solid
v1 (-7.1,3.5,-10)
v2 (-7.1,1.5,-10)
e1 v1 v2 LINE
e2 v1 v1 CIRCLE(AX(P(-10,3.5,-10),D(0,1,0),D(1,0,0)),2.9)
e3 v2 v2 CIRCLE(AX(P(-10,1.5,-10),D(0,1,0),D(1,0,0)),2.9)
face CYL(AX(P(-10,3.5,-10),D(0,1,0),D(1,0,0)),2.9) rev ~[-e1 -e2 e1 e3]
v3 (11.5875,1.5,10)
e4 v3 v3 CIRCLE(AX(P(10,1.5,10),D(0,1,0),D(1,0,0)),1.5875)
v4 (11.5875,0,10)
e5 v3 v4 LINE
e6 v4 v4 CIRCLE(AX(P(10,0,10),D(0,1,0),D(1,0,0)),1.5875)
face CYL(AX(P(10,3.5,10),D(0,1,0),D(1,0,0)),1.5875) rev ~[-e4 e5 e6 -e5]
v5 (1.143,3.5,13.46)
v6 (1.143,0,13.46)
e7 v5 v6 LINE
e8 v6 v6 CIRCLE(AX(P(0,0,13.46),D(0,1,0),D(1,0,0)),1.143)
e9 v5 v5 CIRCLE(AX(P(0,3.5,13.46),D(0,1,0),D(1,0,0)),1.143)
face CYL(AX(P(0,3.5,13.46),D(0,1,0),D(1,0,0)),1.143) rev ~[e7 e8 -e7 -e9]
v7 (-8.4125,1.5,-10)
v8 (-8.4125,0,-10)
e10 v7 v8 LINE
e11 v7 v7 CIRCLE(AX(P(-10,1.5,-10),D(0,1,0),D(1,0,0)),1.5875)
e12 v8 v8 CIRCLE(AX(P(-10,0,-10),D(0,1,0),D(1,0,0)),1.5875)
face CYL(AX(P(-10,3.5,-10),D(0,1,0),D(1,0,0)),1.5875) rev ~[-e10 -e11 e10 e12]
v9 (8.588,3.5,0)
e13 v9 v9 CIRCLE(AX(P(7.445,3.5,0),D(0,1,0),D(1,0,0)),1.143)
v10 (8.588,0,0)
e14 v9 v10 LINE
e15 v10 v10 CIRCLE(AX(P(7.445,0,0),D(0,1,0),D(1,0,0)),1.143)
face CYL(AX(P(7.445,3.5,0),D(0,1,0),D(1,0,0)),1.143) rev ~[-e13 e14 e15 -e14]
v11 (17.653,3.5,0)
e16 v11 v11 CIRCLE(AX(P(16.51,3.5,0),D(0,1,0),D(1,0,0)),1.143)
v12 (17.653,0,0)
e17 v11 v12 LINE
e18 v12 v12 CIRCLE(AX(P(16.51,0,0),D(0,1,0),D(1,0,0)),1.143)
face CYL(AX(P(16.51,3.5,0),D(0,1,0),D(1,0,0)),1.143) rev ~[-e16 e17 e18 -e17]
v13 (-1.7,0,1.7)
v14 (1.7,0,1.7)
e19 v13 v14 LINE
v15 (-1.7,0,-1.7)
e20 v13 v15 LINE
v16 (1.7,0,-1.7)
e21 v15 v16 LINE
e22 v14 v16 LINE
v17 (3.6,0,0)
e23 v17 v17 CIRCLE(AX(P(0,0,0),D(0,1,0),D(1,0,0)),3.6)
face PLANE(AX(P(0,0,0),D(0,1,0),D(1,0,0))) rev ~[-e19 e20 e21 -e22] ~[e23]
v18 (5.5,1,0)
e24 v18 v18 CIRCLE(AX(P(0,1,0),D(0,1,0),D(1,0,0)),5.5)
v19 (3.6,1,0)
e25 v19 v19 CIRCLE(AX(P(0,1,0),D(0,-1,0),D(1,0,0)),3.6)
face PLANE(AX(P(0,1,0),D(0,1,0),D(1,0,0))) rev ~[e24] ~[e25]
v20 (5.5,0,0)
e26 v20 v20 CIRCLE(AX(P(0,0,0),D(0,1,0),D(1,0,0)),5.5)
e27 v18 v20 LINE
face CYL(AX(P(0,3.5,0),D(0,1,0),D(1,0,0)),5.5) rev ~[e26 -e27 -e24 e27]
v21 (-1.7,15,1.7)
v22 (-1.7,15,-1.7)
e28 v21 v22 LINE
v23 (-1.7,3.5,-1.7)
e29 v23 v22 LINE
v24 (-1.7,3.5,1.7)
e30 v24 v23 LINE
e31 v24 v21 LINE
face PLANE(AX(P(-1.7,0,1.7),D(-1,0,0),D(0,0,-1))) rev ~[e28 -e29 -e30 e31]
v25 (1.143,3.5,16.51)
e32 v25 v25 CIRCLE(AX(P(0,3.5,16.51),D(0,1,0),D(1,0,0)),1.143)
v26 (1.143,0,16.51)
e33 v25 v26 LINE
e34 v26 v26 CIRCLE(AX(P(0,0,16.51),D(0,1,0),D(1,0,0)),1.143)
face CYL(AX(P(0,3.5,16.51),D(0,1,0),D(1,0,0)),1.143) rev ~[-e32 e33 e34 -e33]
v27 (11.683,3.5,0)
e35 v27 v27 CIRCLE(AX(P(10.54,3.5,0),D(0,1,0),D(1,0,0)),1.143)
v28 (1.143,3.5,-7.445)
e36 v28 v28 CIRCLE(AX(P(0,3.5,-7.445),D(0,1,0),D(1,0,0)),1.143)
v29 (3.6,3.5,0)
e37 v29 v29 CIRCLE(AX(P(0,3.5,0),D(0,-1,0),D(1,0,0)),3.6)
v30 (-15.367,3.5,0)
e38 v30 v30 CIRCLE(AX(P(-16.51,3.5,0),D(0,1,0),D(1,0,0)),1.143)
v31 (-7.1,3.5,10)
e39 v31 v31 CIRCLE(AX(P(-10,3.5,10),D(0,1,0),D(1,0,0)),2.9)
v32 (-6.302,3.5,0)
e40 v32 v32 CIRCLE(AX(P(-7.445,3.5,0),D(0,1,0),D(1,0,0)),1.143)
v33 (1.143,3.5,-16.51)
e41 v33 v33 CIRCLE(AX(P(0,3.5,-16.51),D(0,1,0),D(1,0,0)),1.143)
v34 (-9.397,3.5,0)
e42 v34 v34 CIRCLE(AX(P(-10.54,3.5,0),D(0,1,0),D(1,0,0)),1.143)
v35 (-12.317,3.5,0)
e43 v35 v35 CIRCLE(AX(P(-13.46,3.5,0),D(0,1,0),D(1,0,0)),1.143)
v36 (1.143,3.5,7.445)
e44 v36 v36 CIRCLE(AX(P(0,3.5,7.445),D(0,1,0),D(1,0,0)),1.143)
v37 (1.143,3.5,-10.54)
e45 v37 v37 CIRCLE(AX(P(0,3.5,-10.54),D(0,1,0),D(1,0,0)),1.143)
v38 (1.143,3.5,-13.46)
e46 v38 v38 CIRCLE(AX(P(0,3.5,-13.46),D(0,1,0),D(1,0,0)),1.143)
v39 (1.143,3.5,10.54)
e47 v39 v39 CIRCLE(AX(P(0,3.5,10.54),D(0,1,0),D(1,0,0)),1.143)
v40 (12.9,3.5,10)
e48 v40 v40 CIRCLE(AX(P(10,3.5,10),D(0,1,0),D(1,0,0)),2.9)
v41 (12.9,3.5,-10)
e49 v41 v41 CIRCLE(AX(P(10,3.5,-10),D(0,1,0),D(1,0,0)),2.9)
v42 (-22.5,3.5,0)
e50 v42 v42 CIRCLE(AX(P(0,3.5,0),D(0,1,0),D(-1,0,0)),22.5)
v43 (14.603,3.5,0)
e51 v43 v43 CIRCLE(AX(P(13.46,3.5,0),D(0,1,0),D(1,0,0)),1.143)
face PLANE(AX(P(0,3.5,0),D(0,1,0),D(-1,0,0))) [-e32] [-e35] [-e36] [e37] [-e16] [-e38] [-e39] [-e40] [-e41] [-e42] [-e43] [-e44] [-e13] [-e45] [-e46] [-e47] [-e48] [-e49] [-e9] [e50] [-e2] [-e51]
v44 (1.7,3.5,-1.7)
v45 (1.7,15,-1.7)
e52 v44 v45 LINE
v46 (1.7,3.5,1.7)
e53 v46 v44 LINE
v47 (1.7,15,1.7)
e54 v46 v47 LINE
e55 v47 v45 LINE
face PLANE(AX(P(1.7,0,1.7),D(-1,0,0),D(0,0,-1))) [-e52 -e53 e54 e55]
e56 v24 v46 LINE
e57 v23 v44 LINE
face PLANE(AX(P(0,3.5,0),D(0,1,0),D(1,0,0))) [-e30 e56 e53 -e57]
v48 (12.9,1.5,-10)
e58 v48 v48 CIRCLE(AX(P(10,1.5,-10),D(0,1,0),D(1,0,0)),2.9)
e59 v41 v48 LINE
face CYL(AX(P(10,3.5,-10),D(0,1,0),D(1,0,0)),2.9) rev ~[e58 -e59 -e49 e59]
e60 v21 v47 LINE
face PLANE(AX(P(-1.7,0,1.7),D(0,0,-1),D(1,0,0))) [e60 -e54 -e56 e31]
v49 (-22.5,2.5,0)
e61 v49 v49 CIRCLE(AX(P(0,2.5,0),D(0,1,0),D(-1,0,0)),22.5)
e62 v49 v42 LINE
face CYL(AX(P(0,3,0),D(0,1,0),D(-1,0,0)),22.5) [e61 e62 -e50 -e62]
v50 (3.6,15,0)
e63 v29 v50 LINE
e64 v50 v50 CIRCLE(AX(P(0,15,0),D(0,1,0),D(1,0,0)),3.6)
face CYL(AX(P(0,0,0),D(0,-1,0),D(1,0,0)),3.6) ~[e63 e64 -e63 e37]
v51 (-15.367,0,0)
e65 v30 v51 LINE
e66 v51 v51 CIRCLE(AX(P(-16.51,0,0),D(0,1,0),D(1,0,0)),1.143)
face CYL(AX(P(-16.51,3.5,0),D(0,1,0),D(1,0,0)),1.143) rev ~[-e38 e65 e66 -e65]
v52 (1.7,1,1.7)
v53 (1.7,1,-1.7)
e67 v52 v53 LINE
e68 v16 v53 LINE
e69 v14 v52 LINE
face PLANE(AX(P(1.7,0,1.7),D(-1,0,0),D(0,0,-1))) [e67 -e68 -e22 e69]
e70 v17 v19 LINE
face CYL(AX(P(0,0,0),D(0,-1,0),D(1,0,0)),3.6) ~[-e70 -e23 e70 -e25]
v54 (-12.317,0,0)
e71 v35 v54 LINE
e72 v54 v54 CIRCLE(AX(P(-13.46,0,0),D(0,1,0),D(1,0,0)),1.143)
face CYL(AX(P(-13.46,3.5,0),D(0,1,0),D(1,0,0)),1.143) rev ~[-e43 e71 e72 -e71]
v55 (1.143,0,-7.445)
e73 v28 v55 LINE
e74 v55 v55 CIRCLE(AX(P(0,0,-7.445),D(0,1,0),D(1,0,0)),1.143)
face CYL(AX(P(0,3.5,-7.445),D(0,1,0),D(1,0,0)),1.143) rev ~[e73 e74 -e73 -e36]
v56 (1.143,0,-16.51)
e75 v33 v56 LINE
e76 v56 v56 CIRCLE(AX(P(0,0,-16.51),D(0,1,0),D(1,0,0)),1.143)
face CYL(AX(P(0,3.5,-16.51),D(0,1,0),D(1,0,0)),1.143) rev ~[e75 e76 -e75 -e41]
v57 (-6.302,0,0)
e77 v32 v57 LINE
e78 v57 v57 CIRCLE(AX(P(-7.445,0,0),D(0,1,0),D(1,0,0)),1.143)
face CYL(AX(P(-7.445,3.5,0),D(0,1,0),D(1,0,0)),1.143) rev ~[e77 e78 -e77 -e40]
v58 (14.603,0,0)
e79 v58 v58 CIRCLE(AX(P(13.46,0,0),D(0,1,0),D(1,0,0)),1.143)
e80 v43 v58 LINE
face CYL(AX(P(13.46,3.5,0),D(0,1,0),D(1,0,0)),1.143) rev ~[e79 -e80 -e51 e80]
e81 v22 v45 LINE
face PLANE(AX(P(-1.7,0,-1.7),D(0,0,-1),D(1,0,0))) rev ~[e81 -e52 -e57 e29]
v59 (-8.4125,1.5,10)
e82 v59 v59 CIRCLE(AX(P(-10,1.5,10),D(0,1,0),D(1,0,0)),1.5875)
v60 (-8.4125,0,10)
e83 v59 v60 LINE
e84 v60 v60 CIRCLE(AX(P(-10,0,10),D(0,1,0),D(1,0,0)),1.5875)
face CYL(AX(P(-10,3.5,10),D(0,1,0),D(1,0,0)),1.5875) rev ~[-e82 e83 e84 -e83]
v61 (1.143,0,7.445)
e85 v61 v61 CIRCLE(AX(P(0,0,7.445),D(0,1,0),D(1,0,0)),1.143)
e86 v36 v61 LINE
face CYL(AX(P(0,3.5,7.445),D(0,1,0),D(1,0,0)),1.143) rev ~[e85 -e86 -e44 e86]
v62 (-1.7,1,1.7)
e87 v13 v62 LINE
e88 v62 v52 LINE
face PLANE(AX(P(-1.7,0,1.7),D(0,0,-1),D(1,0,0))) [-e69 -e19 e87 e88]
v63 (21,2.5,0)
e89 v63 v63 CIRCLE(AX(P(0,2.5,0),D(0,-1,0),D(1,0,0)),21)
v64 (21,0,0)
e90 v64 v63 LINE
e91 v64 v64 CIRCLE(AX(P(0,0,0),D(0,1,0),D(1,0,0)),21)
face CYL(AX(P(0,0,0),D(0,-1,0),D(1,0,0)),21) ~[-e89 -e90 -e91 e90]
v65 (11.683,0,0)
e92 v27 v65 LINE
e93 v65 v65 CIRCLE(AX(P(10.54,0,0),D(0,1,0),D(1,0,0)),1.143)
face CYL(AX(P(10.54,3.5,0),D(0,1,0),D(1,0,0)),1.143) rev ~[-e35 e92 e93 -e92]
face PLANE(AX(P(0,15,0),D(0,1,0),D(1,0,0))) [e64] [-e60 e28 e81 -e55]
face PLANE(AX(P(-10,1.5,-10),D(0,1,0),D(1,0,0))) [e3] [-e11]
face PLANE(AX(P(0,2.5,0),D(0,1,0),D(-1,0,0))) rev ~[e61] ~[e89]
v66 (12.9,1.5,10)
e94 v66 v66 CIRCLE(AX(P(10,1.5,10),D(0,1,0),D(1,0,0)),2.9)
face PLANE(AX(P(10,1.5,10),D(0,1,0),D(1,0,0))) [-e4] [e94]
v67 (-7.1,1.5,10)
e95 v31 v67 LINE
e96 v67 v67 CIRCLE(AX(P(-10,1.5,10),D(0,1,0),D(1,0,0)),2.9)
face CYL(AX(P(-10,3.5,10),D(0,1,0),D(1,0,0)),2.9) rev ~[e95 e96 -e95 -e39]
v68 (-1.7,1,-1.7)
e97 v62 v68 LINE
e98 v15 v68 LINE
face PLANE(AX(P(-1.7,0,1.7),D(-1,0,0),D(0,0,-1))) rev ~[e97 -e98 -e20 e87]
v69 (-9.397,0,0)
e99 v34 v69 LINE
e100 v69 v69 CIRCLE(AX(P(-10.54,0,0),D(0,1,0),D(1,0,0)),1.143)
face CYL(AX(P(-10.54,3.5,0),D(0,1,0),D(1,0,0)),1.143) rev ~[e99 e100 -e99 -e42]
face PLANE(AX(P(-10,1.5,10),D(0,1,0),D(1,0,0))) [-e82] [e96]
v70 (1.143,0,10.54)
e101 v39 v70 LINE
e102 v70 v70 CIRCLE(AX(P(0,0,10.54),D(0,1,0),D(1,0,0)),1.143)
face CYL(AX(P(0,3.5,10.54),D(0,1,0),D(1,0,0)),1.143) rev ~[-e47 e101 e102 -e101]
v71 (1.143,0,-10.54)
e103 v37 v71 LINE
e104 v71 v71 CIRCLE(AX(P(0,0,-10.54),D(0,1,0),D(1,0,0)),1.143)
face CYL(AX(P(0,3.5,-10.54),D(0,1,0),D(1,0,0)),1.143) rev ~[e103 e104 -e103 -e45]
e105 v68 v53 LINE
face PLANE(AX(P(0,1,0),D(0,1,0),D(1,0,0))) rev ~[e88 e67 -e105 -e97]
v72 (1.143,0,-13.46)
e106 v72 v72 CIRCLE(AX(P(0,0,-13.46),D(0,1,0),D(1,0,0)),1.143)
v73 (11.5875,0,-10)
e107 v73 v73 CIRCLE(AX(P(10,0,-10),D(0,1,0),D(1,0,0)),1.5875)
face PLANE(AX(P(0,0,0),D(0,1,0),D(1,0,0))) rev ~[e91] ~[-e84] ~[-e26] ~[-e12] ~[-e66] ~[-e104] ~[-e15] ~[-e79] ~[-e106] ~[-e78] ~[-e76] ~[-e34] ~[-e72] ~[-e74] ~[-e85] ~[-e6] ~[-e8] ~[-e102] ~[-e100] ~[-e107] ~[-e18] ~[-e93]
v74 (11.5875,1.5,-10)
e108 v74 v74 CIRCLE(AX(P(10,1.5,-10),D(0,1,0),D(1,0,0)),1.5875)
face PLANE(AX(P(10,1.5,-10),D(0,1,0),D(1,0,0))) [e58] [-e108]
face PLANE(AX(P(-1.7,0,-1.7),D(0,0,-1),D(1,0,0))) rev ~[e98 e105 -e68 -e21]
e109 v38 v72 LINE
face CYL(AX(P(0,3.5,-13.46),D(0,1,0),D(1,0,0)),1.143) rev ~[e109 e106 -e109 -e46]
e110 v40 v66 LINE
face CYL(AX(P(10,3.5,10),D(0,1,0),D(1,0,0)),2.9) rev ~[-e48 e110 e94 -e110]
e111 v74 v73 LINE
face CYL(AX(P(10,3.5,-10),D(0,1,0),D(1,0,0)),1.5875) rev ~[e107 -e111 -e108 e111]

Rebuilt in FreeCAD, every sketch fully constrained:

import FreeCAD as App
import Part
import Sketcher
Q = App.Units.Quantity


def add_polygon(sketch, points):
    """Adds a closed chain of lines whose ends are joined by coincident constraints."""
    first, n = sketch.GeometryCount, len(points)
    for a, b in zip(points, points[1:] + points[:1]):
        sketch.addGeometry(Part.LineSegment(App.Vector(*a, 0), App.Vector(*b, 0)), False)
    for i in range(n):
        sketch.addConstraint(Sketcher.Constraint("Coincident", first + i, 2, first + (i + 1) % n, 1))

doc = App.newDocument("Part")
body = doc.addObject("PartDesign::Body", "Body")

sketch1 = doc.addObject("Sketcher::SketchObject", "Sketch")
body.addObject(sketch1)
sketch1.AttachmentSupport = (doc.XZ_Plane, [""])
sketch1.MapMode = "FlatFace"
sketch1.addGeometry(Part.Circle(App.Vector(0, 0, 0), App.Vector(0, 0, 1), 21), False)
sketch1.addConstraint(Sketcher.Constraint("Coincident", 0, 3, -1, 1))
sketch1.addConstraint(Sketcher.Constraint("Diameter", 0, Q("42 mm")))
pad1 = doc.addObject("PartDesign::Pad", "Pad")
body.addObject(pad1)
pad1.Profile = sketch1
pad1.Length = 3.5
pad1.Reversed = True

sketch2 = doc.addObject("Sketcher::SketchObject", "Sketch001")
body.addObject(sketch2)
sketch2.AttachmentSupport = (doc.XZ_Plane, [""])
sketch2.MapMode = "FlatFace"
sketch2.AttachmentOffset = App.Placement(App.Vector(0, 0, -3.5), App.Rotation())
sketch2.addGeometry(Part.Circle(App.Vector(0, 0, 0), App.Vector(0, 0, 1), 5.5), False)
sketch2.addGeometry(Part.Circle(App.Vector(7.4, 0, 0), App.Vector(0, 0, 1), 1.1), False)
sketch2.addGeometry(Part.Circle(App.Vector(10.5, 0, 0), App.Vector(0, 0, 1), 1.1), False)
sketch2.addGeometry(Part.Circle(App.Vector(13.5, 0, 0), App.Vector(0, 0, 1), 1.1), False)
sketch2.addGeometry(Part.Circle(App.Vector(16.5, 0, 0), App.Vector(0, 0, 1), 1.1), False)
sketch2.addGeometry(Part.Circle(App.Vector(10, -10, 0), App.Vector(0, 0, 1), 1.6), False)
sketch2.addGeometry(Part.Circle(App.Vector(0, 7.4, 0), App.Vector(0, 0, 1), 1.1), False)
sketch2.addGeometry(Part.Circle(App.Vector(0, 10.5, 0), App.Vector(0, 0, 1), 1.1), False)
sketch2.addGeometry(Part.Circle(App.Vector(0, 13.5, 0), App.Vector(0, 0, 1), 1.1), False)
sketch2.addGeometry(Part.Circle(App.Vector(0, 16.5, 0), App.Vector(0, 0, 1), 1.1), False)
sketch2.addGeometry(Part.Circle(App.Vector(10, 10, 0), App.Vector(0, 0, 1), 1.6), False)
sketch2.addGeometry(Part.Circle(App.Vector(-7.4, 0, 0), App.Vector(0, 0, 1), 1.1), False)
sketch2.addGeometry(Part.Circle(App.Vector(-10.5, 0, 0), App.Vector(0, 0, 1), 1.1), False)
sketch2.addGeometry(Part.Circle(App.Vector(-13.5, 0, 0), App.Vector(0, 0, 1), 1.1), False)
sketch2.addGeometry(Part.Circle(App.Vector(-16.5, 0, 0), App.Vector(0, 0, 1), 1.1), False)
sketch2.addGeometry(Part.Circle(App.Vector(-10, 10, 0), App.Vector(0, 0, 1), 1.6), False)
sketch2.addGeometry(Part.Circle(App.Vector(0, -7.4, 0), App.Vector(0, 0, 1), 1.1), False)
sketch2.addGeometry(Part.Circle(App.Vector(0, -10.5, 0), App.Vector(0, 0, 1), 1.1), False)
sketch2.addGeometry(Part.Circle(App.Vector(0, -13.5, 0), App.Vector(0, 0, 1), 1.1), False)
sketch2.addGeometry(Part.Circle(App.Vector(0, -16.5, 0), App.Vector(0, 0, 1), 1.1), False)
sketch2.addGeometry(Part.Circle(App.Vector(-10, -10, 0), App.Vector(0, 0, 1), 1.6), False)
sketch2.addConstraint(Sketcher.Constraint("Coincident", 0, 3, -1, 1))
sketch2.addConstraint(Sketcher.Constraint("Equal", 1, 2))
sketch2.addConstraint(Sketcher.Constraint("Equal", 2, 3))
sketch2.addConstraint(Sketcher.Constraint("Equal", 3, 4))
sketch2.addConstraint(Sketcher.Constraint("Equal", 4, 6))
sketch2.addConstraint(Sketcher.Constraint("Equal", 6, 7))
sketch2.addConstraint(Sketcher.Constraint("Equal", 7, 8))
sketch2.addConstraint(Sketcher.Constraint("Equal", 8, 9))
sketch2.addConstraint(Sketcher.Constraint("Equal", 5, 10))
sketch2.addConstraint(Sketcher.Constraint("Equal", 9, 11))
sketch2.addConstraint(Sketcher.Constraint("Equal", 11, 12))
sketch2.addConstraint(Sketcher.Constraint("Equal", 12, 13))
sketch2.addConstraint(Sketcher.Constraint("Equal", 13, 14))
sketch2.addConstraint(Sketcher.Constraint("Equal", 10, 15))
sketch2.addConstraint(Sketcher.Constraint("Equal", 14, 16))
sketch2.addConstraint(Sketcher.Constraint("Equal", 16, 17))
sketch2.addConstraint(Sketcher.Constraint("Equal", 17, 18))
sketch2.addConstraint(Sketcher.Constraint("Equal", 18, 19))
sketch2.addConstraint(Sketcher.Constraint("Equal", 15, 20))
sketch2.addConstraint(Sketcher.Constraint("Symmetric", 1, 3, 11, 3, -1, 1))
sketch2.addConstraint(Sketcher.Constraint("Symmetric", 2, 3, 12, 3, -1, 1))
sketch2.addConstraint(Sketcher.Constraint("Symmetric", 3, 3, 13, 3, -1, 1))
sketch2.addConstraint(Sketcher.Constraint("Symmetric", 4, 3, 14, 3, -1, 1))
sketch2.addConstraint(Sketcher.Constraint("Symmetric", 5, 3, 15, 3, -1, 1))
sketch2.addConstraint(Sketcher.Constraint("Symmetric", 6, 3, 16, 3, -1, 1))
sketch2.addConstraint(Sketcher.Constraint("Symmetric", 7, 3, 17, 3, -1, 1))
sketch2.addConstraint(Sketcher.Constraint("Symmetric", 8, 3, 18, 3, -1, 1))
sketch2.addConstraint(Sketcher.Constraint("Symmetric", 9, 3, 19, 3, -1, 1))
sketch2.addConstraint(Sketcher.Constraint("Symmetric", 10, 3, 20, 3, -1, 1))
sketch2.addConstraint(Sketcher.Constraint("Symmetric", 10, 3, 15, 3, -2))
sketch2.addConstraint(Sketcher.Constraint("PointOnObject", 1, 3, -1))
sketch2.addConstraint(Sketcher.Constraint("PointOnObject", 2, 3, -1))
sketch2.addConstraint(Sketcher.Constraint("PointOnObject", 3, 3, -1))
sketch2.addConstraint(Sketcher.Constraint("PointOnObject", 4, 3, -1))
sketch2.addConstraint(Sketcher.Constraint("PointOnObject", 6, 3, -2))
sketch2.addConstraint(Sketcher.Constraint("PointOnObject", 7, 3, -2))
sketch2.addConstraint(Sketcher.Constraint("PointOnObject", 8, 3, -2))
sketch2.addConstraint(Sketcher.Constraint("PointOnObject", 9, 3, -2))
sketch2.addConstraint(Sketcher.Constraint("Diameter", 0, Q("11 mm")))
sketch2.addConstraint(Sketcher.Constraint("Diameter", 1, Q("2.286 mm")))
sketch2.addConstraint(Sketcher.Constraint("Diameter", 5, Q("3.175 mm")))
sketch2.addConstraint(Sketcher.Constraint("DistanceX", -1, 1, 5, 3, Q("10 mm")))
sketch2.addConstraint(Sketcher.Constraint("DistanceY", 5, 3, -1, 1, Q("10 mm")))
sketch2.addConstraint(Sketcher.Constraint("DistanceX", -1, 1, 2, 3, Q("10.54 mm")))
sketch2.addConstraint(Sketcher.Constraint("DistanceX", -1, 1, 3, 3, Q("13.46 mm")))
sketch2.addConstraint(Sketcher.Constraint("DistanceX", -1, 1, 4, 3, Q("16.51 mm")))
sketch2.addConstraint(Sketcher.Constraint("DistanceY", -1, 1, 7, 3, Q("10.54 mm")))
sketch2.addConstraint(Sketcher.Constraint("DistanceY", -1, 1, 8, 3, Q("13.46 mm")))
sketch2.addConstraint(Sketcher.Constraint("DistanceY", -1, 1, 9, 3, Q("16.51 mm")))
sketch2.addConstraint(Sketcher.Constraint("DistanceX", 11, 3, 1, 3, Q("14.89 mm")))
sketch2.addConstraint(Sketcher.Constraint("DistanceY", -1, 1, 6, 3, Q("7.445 mm")))
pocket1 = doc.addObject("PartDesign::Pocket", "Pocket")
body.addObject(pocket1)
pocket1.Profile = sketch2
pocket1.Type = "ThroughAll"
pocket1.Reversed = True

sketch3 = doc.addObject("Sketcher::SketchObject", "Sketch002")
body.addObject(sketch3)
sketch3.AttachmentSupport = (doc.XZ_Plane, [""])
sketch3.MapMode = "FlatFace"
sketch3.AttachmentOffset = App.Placement(App.Vector(0, 0, -3.5), App.Rotation())
sketch3.addGeometry(Part.Circle(App.Vector(-10, -10, 0), App.Vector(0, 0, 1), 2.9), False)
sketch3.addGeometry(Part.Circle(App.Vector(-10, 10, 0), App.Vector(0, 0, 1), 2.9), False)
sketch3.addGeometry(Part.Circle(App.Vector(10, -10, 0), App.Vector(0, 0, 1), 2.9), False)
sketch3.addGeometry(Part.Circle(App.Vector(10, 10, 0), App.Vector(0, 0, 1), 2.9), False)
sketch3.addConstraint(Sketcher.Constraint("Equal", 0, 1))
sketch3.addConstraint(Sketcher.Constraint("Equal", 1, 2))
sketch3.addConstraint(Sketcher.Constraint("Equal", 2, 3))
sketch3.addConstraint(Sketcher.Constraint("Symmetric", 1, 3, 2, 3, -1, 1))
sketch3.addConstraint(Sketcher.Constraint("Symmetric", 0, 3, 3, 3, -1, 1))
sketch3.addConstraint(Sketcher.Constraint("Symmetric", 0, 3, 2, 3, -2))
sketch3.addConstraint(Sketcher.Constraint("Diameter", 0, Q("5.8 mm")))
sketch3.addConstraint(Sketcher.Constraint("DistanceX", 0, 3, -1, 1, Q("10 mm")))
sketch3.addConstraint(Sketcher.Constraint("DistanceY", 0, 3, -1, 1, Q("10 mm")))
pocket2 = doc.addObject("PartDesign::Pocket", "Pocket001")
body.addObject(pocket2)
pocket2.Profile = sketch3
pocket2.Length = 2
pocket2.Reversed = True

sketch4 = doc.addObject("Sketcher::SketchObject", "Sketch003")
body.addObject(sketch4)
sketch4.AttachmentSupport = (doc.XY_Plane, [""])
sketch4.MapMode = "FlatFace"
add_polygon(sketch4, [(-22.5, 3.5), (-22.5, 2.5), (-20.4, 2.5), (-20.4, 3.5)])
sketch4.addConstraint(Sketcher.Constraint("Vertical", 0))
sketch4.addConstraint(Sketcher.Constraint("Horizontal", 1))
sketch4.addConstraint(Sketcher.Constraint("Vertical", 2))
sketch4.addConstraint(Sketcher.Constraint("Horizontal", 3))
sketch4.addConstraint(Sketcher.Constraint("DistanceY", 0, 2, 0, 1, Q("1 mm")))
sketch4.addConstraint(Sketcher.Constraint("DistanceX", 0, 2, -1, 1, Q("22.5 mm")))
sketch4.addConstraint(Sketcher.Constraint("DistanceY", -1, 1, 0, 2, Q("2.5 mm")))
sketch4.addConstraint(Sketcher.Constraint("DistanceX", 1, 1, 1, 2, Q("2.148549 mm")))
revolution = doc.addObject("PartDesign::Revolution", "Revolution")
body.addObject(revolution)
revolution.Profile = sketch4
revolution.ReferenceAxis = (sketch4, ["V_Axis"])
revolution.Angle = 360
body2 = doc.addObject("PartDesign::Body", "Body001")

sketch5 = doc.addObject("Sketcher::SketchObject", "Sketch004")
body2.addObject(sketch5)
sketch5.AttachmentSupport = (doc.getObject("XZ_Plane001"), [""])
sketch5.MapMode = "FlatFace"
sketch5.addGeometry(Part.Circle(App.Vector(0, 0, 0), App.Vector(0, 0, 1), 3.6), False)
add_polygon(sketch5, [(1.7, 1.7), (-1.7, 1.7), (-1.7, -1.7), (1.7, -1.7)])
sketch5.addConstraint(Sketcher.Constraint("Horizontal", 1))
sketch5.addConstraint(Sketcher.Constraint("Vertical", 2))
sketch5.addConstraint(Sketcher.Constraint("Horizontal", 3))
sketch5.addConstraint(Sketcher.Constraint("Vertical", 4))
sketch5.addConstraint(Sketcher.Constraint("Coincident", 0, 3, -1, 1))
sketch5.addConstraint(Sketcher.Constraint("Symmetric", 1, 2, 3, 2, -1, 1))
sketch5.addConstraint(Sketcher.Constraint("Equal", 3, 2))
sketch5.addConstraint(Sketcher.Constraint("Diameter", 0, Q("7.2 mm")))
sketch5.addConstraint(Sketcher.Constraint("DistanceX", 1, 2, 1, 1, Q("3.4 mm")))
pad2 = doc.addObject("PartDesign::Pad", "Pad001")
body2.addObject(pad2)
pad2.Profile = sketch5
pad2.Length = 15
pad2.Reversed = True
body.AllowCompound = True
doc.recompute()

boolean = doc.addObject("PartDesign::Boolean", "Boolean")
body.addObject(boolean)
boolean.Type = "Fuse"
boolean.addObjects([body2])

sketch6 = doc.addObject("Sketcher::SketchObject", "Sketch005")
body.addObject(sketch6)
sketch6.AttachmentSupport = (doc.XZ_Plane, [""])
sketch6.MapMode = "FlatFace"
sketch6.AttachmentOffset = App.Placement(App.Vector(0, 0, -3.5), App.Rotation())
sketch6.addGeometry(Part.Circle(App.Vector(0, 0, 0), App.Vector(0, 0, 1), 6), False)
sketch6.addConstraint(Sketcher.Constraint("Coincident", 0, 3, -1, 1))
sketch6.addConstraint(Sketcher.Constraint("Diameter", 0, Q("12.5 mm")))
pad3 = doc.addObject("PartDesign::Pad", "Pad002")
body.addObject(pad3)
pad3.Profile = sketch6
pad3.Length = 2.5

doc.recompute()
